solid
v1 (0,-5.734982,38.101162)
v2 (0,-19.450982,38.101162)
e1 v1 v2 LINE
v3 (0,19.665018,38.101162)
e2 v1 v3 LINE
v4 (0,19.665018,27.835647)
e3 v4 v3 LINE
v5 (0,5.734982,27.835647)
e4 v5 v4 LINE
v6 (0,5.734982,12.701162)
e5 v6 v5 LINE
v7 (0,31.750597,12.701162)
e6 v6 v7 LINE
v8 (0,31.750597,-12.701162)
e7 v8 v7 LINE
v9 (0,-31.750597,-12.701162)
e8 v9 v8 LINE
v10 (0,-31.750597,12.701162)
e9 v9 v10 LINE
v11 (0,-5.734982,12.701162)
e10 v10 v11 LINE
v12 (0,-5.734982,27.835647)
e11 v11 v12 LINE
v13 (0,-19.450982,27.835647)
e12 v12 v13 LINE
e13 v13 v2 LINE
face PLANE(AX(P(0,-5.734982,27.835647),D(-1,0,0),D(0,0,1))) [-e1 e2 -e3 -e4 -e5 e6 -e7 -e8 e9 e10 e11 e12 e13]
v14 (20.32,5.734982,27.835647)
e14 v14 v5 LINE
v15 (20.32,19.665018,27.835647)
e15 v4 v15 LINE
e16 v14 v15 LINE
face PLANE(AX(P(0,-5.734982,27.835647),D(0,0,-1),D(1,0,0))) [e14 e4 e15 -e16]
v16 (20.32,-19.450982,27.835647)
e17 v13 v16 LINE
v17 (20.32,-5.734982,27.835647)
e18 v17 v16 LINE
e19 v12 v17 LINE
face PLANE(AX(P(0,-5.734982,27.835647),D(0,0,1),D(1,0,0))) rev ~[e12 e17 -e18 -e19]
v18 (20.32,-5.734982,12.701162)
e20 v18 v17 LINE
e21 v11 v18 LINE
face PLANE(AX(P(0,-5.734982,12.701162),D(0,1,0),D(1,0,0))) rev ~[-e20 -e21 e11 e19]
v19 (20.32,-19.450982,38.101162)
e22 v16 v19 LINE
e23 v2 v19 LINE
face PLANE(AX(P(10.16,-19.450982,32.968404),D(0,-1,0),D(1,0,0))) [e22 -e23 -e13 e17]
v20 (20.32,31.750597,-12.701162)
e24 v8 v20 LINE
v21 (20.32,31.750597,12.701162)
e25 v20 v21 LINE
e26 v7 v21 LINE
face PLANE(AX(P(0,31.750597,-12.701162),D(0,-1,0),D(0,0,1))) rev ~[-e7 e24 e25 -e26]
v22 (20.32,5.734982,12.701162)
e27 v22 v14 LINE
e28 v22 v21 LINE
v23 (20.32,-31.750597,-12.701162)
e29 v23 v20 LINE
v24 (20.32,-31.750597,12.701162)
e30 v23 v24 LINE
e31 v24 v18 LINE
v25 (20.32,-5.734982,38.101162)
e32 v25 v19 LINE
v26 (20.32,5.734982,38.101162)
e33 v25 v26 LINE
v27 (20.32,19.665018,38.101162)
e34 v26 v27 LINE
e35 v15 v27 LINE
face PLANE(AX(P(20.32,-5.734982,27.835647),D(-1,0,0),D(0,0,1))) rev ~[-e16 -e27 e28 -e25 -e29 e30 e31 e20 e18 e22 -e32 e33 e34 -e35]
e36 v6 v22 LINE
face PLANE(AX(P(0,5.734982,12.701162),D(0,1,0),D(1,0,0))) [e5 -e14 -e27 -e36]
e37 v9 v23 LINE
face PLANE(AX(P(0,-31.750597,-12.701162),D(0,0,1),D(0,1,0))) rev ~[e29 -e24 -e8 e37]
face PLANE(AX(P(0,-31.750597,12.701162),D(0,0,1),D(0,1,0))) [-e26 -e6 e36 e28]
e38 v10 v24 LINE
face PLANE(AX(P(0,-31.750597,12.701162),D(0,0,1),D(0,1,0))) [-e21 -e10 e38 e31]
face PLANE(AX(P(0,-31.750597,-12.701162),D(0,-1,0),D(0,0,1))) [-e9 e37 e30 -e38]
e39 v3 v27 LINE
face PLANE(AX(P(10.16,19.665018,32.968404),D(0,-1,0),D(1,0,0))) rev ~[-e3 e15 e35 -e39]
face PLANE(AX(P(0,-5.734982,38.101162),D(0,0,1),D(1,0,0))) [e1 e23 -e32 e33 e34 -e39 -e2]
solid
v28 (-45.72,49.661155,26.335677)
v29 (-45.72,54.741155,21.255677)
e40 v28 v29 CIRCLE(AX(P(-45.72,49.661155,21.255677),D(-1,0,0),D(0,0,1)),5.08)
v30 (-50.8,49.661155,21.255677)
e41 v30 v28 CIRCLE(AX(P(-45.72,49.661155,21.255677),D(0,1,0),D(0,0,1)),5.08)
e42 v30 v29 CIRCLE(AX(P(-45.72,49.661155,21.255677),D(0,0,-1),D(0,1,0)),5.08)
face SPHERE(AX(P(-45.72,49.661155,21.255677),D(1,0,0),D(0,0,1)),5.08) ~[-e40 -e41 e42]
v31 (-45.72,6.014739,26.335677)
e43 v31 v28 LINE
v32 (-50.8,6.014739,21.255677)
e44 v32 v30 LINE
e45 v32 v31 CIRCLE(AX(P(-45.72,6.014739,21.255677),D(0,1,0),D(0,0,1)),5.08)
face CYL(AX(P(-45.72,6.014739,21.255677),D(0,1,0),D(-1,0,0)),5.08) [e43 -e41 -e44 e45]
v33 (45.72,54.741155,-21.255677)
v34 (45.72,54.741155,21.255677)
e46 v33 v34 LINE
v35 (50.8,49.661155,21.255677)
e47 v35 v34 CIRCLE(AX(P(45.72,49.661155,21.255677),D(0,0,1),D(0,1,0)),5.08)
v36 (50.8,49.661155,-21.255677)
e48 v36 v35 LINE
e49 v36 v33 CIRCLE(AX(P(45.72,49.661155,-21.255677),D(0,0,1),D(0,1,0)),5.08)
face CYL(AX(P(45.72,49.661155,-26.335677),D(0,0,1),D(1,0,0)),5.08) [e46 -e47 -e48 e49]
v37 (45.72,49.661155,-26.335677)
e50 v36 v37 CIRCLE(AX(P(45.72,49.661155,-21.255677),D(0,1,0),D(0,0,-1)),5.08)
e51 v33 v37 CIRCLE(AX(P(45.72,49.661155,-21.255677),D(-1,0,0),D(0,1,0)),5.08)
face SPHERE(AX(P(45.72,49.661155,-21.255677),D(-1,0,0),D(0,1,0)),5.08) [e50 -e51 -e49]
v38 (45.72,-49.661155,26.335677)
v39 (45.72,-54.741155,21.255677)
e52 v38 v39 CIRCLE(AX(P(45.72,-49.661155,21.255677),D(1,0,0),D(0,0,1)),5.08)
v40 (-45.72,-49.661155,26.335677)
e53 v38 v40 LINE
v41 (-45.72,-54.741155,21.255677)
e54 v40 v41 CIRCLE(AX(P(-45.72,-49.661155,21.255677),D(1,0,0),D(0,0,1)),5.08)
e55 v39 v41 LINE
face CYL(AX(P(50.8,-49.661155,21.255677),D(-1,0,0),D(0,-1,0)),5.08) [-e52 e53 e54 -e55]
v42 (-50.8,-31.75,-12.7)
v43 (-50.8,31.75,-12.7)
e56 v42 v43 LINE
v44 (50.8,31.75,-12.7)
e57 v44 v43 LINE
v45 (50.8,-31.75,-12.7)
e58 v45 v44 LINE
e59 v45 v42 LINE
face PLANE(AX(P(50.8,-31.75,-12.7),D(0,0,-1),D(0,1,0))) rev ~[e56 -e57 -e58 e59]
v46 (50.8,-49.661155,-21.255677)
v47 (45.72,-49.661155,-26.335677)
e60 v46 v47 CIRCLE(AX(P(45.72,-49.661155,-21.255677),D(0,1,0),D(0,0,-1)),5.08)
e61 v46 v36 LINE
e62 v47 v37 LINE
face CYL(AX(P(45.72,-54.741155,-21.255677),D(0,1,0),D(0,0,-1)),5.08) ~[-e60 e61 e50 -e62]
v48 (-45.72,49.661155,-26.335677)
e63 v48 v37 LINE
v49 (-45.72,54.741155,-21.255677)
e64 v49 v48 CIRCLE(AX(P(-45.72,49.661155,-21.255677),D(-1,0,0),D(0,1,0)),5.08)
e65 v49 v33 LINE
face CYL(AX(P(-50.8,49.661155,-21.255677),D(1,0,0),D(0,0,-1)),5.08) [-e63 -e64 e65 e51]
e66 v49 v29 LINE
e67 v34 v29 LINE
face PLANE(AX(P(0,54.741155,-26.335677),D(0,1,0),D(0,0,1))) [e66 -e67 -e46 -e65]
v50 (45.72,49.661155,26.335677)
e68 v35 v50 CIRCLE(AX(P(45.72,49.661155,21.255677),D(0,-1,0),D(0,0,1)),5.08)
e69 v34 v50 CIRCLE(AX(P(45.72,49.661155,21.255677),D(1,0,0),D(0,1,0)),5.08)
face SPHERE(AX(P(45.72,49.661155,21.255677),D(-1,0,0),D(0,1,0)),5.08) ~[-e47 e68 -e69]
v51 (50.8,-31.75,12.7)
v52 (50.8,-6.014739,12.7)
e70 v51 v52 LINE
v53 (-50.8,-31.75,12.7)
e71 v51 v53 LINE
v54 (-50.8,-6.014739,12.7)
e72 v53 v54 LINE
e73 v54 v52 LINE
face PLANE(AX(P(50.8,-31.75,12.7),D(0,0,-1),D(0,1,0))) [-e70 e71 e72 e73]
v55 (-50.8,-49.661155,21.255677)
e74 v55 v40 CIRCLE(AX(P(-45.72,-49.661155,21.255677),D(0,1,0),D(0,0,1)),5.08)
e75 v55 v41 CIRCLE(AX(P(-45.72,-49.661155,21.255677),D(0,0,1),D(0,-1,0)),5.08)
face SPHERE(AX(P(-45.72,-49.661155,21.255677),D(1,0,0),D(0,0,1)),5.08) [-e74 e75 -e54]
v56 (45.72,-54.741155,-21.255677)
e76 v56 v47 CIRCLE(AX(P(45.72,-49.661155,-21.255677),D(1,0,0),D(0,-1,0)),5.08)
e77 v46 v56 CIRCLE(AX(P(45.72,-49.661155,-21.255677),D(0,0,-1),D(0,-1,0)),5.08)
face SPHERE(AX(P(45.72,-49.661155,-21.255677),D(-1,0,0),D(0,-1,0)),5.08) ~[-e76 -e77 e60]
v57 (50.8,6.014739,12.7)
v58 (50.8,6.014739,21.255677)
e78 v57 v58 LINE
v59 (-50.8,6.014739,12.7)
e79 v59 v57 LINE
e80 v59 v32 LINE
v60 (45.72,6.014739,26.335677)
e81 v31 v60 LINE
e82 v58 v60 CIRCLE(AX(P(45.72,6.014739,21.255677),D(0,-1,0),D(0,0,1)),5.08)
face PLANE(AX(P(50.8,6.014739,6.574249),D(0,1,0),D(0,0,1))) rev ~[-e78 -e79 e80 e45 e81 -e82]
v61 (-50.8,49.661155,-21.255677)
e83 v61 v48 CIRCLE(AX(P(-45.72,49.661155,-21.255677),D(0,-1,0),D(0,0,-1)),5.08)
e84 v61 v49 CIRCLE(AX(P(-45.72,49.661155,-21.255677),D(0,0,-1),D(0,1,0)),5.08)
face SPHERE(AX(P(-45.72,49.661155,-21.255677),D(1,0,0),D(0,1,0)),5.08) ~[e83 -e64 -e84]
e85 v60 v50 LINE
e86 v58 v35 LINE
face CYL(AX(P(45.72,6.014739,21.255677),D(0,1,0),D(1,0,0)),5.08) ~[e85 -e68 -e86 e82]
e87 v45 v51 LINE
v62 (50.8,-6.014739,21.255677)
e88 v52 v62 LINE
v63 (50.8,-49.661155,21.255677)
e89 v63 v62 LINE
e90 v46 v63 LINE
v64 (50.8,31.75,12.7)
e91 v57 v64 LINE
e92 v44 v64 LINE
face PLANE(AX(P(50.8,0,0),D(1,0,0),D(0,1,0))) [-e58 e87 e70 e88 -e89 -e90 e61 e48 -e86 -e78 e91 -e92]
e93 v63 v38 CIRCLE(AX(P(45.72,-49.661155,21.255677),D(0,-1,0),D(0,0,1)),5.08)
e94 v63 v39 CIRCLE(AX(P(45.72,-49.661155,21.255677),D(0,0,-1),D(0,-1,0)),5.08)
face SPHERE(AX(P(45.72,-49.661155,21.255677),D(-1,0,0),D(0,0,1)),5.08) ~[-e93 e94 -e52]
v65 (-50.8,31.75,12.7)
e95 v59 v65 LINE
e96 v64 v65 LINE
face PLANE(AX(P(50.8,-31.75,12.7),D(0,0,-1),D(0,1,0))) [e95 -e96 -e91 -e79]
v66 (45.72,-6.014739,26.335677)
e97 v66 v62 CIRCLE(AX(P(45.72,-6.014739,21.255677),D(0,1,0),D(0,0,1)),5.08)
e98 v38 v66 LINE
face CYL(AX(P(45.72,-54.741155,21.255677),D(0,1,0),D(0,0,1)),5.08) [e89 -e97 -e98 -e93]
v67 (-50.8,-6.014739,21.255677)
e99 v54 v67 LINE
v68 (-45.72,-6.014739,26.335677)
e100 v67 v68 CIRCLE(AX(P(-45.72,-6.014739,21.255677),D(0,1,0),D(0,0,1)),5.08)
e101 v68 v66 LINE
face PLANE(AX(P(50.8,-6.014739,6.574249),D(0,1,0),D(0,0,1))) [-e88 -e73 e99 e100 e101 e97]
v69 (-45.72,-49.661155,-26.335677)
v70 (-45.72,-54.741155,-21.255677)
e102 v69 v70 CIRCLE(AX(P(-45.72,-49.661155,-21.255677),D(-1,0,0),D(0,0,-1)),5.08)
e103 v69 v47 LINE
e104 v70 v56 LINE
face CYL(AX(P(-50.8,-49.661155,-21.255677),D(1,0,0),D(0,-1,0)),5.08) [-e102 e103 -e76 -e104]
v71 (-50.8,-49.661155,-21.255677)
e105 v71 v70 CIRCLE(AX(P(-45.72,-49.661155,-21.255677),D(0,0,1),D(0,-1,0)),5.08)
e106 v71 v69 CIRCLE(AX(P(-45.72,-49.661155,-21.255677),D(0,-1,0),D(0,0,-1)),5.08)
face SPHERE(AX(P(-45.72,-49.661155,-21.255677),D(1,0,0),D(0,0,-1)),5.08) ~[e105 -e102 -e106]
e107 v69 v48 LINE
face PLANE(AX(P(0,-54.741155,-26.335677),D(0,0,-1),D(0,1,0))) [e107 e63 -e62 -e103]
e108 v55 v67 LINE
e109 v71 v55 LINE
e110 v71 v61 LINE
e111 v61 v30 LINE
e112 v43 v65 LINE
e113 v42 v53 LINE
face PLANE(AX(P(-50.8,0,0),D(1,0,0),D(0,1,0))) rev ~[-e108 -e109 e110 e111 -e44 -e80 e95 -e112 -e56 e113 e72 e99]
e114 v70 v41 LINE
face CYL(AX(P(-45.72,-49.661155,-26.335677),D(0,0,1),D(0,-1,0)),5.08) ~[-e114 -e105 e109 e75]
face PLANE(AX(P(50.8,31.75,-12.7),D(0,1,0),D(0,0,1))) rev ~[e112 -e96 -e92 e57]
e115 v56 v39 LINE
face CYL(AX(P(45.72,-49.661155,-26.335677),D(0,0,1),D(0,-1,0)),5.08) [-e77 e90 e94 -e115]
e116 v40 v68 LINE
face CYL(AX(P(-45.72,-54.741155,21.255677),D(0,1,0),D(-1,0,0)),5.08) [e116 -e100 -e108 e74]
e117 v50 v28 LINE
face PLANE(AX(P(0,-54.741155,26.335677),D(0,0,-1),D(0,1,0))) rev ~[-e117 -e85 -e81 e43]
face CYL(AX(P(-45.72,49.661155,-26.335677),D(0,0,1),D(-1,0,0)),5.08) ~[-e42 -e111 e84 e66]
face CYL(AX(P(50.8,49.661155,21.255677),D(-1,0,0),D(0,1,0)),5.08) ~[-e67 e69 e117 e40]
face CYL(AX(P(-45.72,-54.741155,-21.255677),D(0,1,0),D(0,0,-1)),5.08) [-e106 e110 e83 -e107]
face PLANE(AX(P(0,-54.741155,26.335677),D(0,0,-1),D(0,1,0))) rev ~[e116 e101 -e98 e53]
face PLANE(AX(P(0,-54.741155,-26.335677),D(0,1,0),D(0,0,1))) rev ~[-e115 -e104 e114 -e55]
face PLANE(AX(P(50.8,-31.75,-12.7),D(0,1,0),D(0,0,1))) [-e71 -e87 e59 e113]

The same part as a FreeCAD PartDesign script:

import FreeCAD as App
import Part
import Sketcher
from FreeCAD import Vector
Q = App.Units.Quantity


def edges_at(feature, points):
    """Names of the edges that pass closest to the given points."""
    edges = feature.Shape.Edges
    near = lambda p: min(range(len(edges)), key=lambda i: edges[i].distToShape(Part.Vertex(*p))[0])
    return sorted({f"Edge{near(p) + 1}" for p in points})


def add_polygon(sketch, points):
    """Adds a closed chain of lines whose ends are joined by coincident constraints."""
    first, n = sketch.GeometryCount, len(points)
    for a, b in zip(points, points[1:] + points[:1]):
        sketch.addGeometry(Part.LineSegment(App.Vector(*a, 0), App.Vector(*b, 0)), False)
    for i in range(n):
        sketch.addConstraint(Sketcher.Constraint("Coincident", first + i, 2, first + (i + 1) % n, 1))

doc = App.newDocument("Part")
body = doc.addObject("PartDesign::Body", "Body")

# Sketch on YZ plane
sketch1 = doc.addObject("Sketcher::SketchObject", "Sketch")
body.addObject(sketch1)
sketch1.AttachmentSupport = (doc.YZ_Plane, [""])
sketch1.MapMode = "FlatFace"
add_polygon(sketch1, [(-55, 26), (-55, -26), (55, -26), (55, 26)])  # lines 0-3
sketch1.addConstraint(Sketcher.Constraint("Vertical", 0))
sketch1.addConstraint(Sketcher.Constraint("Horizontal", 1))
sketch1.addConstraint(Sketcher.Constraint("Vertical", 2))
sketch1.addConstraint(Sketcher.Constraint("Horizontal", 3))
sketch1.addConstraint(Sketcher.Constraint("Symmetric", 0, 2, 2, 2, -1, 1))
sketch1.addConstraint(Sketcher.Constraint("DistanceX", 1, 1, 1, 2, 109.482311))
sketch1.addConstraint(Sketcher.Constraint("DistanceY", 0, 2, 0, 1, 52.671354))
pad1 = doc.addObject("PartDesign::Pad", "Pad")
body.addObject(pad1)
pad1.Profile = sketch1
pad1.Type = "TwoLengths"
pad1.Length = Q("2 in")
pad1.Length2 = Q("2 in")

# Sketch on YZ plane
sketch2 = doc.addObject("Sketcher::SketchObject", "Sketch001")
body.addObject(sketch2)
sketch2.AttachmentSupport = (doc.YZ_Plane, [""])
sketch2.MapMode = "FlatFace"
sketch2.AttachmentOffset = App.Placement(Vector(0, 0, 2 * 25.4), App.Rotation())
add_polygon(sketch2, [(-32, 13), (-32, -13), (32, -13), (32, 13)])  # lines 0-3
sketch2.addConstraint(Sketcher.Constraint("Vertical", 0))
sketch2.addConstraint(Sketcher.Constraint("Horizontal", 1))
sketch2.addConstraint(Sketcher.Constraint("Vertical", 2))
sketch2.addConstraint(Sketcher.Constraint("Horizontal", 3))
sketch2.addConstraint(Sketcher.Constraint("Symmetric", 0, 2, 2, 2, -1, 1))
sketch2.addConstraint(Sketcher.Constraint("DistanceY", 0, 2, 0, 1, Q("1 in")))
sketch2.addConstraint(Sketcher.Constraint("DistanceX", 1, 1, 1, 2, Q("2.5 in")))
pocket1 = doc.addObject("PartDesign::Pocket", "Pocket")
body.addObject(pocket1)
pocket1.Profile = sketch2
pocket1.Length = Q("4.91 in")

# Sketch on YZ plane
sketch3 = doc.addObject("Sketcher::SketchObject", "Sketch002")
body.addObject(sketch3)
sketch3.AttachmentSupport = (doc.YZ_Plane, [""])
sketch3.MapMode = "FlatFace"
sketch3.AttachmentOffset = App.Placement(Vector(0, 0, 2 * 25.4), App.Rotation())
add_polygon(sketch3, [(-6, 30), (-6, 7), (6, 7), (6, 30)])  # lines 0-3
sketch3.addConstraint(Sketcher.Constraint("Vertical", 0))
sketch3.addConstraint(Sketcher.Constraint("Horizontal", 1))
sketch3.addConstraint(Sketcher.Constraint("Vertical", 2))
sketch3.addConstraint(Sketcher.Constraint("Horizontal", 3))
sketch3.addConstraint(Sketcher.Constraint("DistanceX", 1, 1, 1, 2, 12.029478))
sketch3.addConstraint(Sketcher.Constraint("DistanceY", 0, 2, 0, 1, 23.49944))
sketch3.addConstraint(Sketcher.Constraint("DistanceX", 0, 2, -1, 1, 6.014739))
sketch3.addConstraint(Sketcher.Constraint("DistanceY", -1, 1, 0, 2, 6.574249))
pocket2 = doc.addObject("PartDesign::Pocket", "Pocket001")
body.addObject(pocket2)
pocket2.Profile = sketch3
pocket2.Length = Q("4.68 in")
doc.recompute()

fillet = doc.addObject("PartDesign::Fillet", "Fillet")
body.addObject(fillet)
fillet.Base = (pocket2, edges_at(pocket2, [
    (0, -54.741, 26.336),
    (0, 54.741, 26.336),
    (0, -54.741, -26.336),
    (0, 54.741, -26.336),
    (50.8, 54.741, 0),
    (50.8, 30.378, 26.336),
    (50.8, -30.378, 26.336),
    (50.8, -54.741, 0),
    (50.8, 0, -26.336),
    (-50.8, 30.378, 26.336),
    (-50.8, -30.378, 26.336),
    (-50.8, 54.741, 0),
    (-50.8, 0, -26.336),
    (-50.8, -54.741, 0),
]))
fillet.Radius = Q("0.2 in")
body2 = doc.addObject("PartDesign::Body", "Body001")

# Sketch on YZ plane
sketch4 = doc.addObject("Sketcher::SketchObject", "Sketch003")
body2.addObject(sketch4)
sketch4.AttachmentSupport = (doc.getObject("YZ_Plane001"), [""])
sketch4.MapMode = "FlatFace"
add_polygon(sketch4, [(-32, 13), (-32, -13), (32, -13), (32, 13)])  # lines 0-3
sketch4.addConstraint(Sketcher.Constraint("Vertical", 0))
sketch4.addConstraint(Sketcher.Constraint("Horizontal", 1))
sketch4.addConstraint(Sketcher.Constraint("Vertical", 2))
sketch4.addConstraint(Sketcher.Constraint("Horizontal", 3))
sketch4.addConstraint(Sketcher.Constraint("Symmetric", 0, 2, 2, 2, -1, 1))
sketch4.addConstraint(Sketcher.Constraint("DistanceX", 1, 1, 1, 2, 63.501194))
sketch4.addConstraint(Sketcher.Constraint("DistanceY", 0, 2, 0, 1, 25.402324))
pad2 = doc.addObject("PartDesign::Pad", "Pad001")
body2.addObject(pad2)
pad2.Profile = sketch4
pad2.Length = Q("0.8 in")

# Sketch on XY plane
sketch5 = doc.addObject("Sketcher::SketchObject", "Sketch004")
body2.addObject(sketch5)
sketch5.AttachmentSupport = (doc.getObject("XY_Plane001"), [""])
sketch5.MapMode = "FlatFace"
sketch5.AttachmentOffset = App.Placement(Vector(0, 0, 12.701162), App.Rotation())
add_polygon(sketch5, [(0, 6), (0, -6), (20, -6), (20, 6)])  # lines 0-3
sketch5.addConstraint(Sketcher.Constraint("Vertical", 0))
sketch5.addConstraint(Sketcher.Constraint("Horizontal", 1))
sketch5.addConstraint(Sketcher.Constraint("Vertical", 2))
sketch5.addConstraint(Sketcher.Constraint("Horizontal", 3))
sketch5.addConstraint(Sketcher.Constraint("Symmetric", 0, 2, 3, 2, -1, 1))
sketch5.addConstraint(Sketcher.Constraint("DistanceX", 1, 1, 1, 2, Q("0.8 in")))
sketch5.addConstraint(Sketcher.Constraint("DistanceY", 0, 2, 0, 1, 11.469965))
pad3 = doc.addObject("PartDesign::Pad", "Pad002")
body2.addObject(pad3)
pad3.Profile = sketch5
pad3.Length = Q("1 in")

# Sketch on XZ plane
sketch6 = doc.addObject("Sketcher::SketchObject", "Sketch005")
body2.addObject(sketch6)
sketch6.AttachmentSupport = (doc.getObject("XZ_Plane001"), [""])
sketch6.MapMode = "FlatFace"
sketch6.AttachmentOffset = App.Placement(Vector(0, 0, 5.734982), App.Rotation())
add_polygon(sketch6, [(0, 38), (0, 28), (20, 28), (20, 38)])  # lines 0-3
sketch6.addConstraint(Sketcher.Constraint("Vertical", 0))
sketch6.addConstraint(Sketcher.Constraint("Horizontal", 1))
sketch6.addConstraint(Sketcher.Constraint("Vertical", 2))
sketch6.addConstraint(Sketcher.Constraint("Horizontal", 3))
sketch6.addConstraint(Sketcher.Constraint("PointOnObject", 0, 2, -2))
sketch6.addConstraint(Sketcher.Constraint("DistanceX", 1, 1, 1, 2, Q("0.8 in")))
sketch6.addConstraint(Sketcher.Constraint("DistanceY", 0, 2, 0, 1, 10.265515))
sketch6.addConstraint(Sketcher.Constraint("DistanceY", -1, 1, 0, 2, 27.835647))
pad4 = doc.addObject("PartDesign::Pad", "Pad003")
body2.addObject(pad4)
pad4.Profile = sketch6
pad4.Type = "TwoLengths"
pad4.Length = Q("0.54 in")
pad4.Length2 = Q("1 in")

doc.recompute()
